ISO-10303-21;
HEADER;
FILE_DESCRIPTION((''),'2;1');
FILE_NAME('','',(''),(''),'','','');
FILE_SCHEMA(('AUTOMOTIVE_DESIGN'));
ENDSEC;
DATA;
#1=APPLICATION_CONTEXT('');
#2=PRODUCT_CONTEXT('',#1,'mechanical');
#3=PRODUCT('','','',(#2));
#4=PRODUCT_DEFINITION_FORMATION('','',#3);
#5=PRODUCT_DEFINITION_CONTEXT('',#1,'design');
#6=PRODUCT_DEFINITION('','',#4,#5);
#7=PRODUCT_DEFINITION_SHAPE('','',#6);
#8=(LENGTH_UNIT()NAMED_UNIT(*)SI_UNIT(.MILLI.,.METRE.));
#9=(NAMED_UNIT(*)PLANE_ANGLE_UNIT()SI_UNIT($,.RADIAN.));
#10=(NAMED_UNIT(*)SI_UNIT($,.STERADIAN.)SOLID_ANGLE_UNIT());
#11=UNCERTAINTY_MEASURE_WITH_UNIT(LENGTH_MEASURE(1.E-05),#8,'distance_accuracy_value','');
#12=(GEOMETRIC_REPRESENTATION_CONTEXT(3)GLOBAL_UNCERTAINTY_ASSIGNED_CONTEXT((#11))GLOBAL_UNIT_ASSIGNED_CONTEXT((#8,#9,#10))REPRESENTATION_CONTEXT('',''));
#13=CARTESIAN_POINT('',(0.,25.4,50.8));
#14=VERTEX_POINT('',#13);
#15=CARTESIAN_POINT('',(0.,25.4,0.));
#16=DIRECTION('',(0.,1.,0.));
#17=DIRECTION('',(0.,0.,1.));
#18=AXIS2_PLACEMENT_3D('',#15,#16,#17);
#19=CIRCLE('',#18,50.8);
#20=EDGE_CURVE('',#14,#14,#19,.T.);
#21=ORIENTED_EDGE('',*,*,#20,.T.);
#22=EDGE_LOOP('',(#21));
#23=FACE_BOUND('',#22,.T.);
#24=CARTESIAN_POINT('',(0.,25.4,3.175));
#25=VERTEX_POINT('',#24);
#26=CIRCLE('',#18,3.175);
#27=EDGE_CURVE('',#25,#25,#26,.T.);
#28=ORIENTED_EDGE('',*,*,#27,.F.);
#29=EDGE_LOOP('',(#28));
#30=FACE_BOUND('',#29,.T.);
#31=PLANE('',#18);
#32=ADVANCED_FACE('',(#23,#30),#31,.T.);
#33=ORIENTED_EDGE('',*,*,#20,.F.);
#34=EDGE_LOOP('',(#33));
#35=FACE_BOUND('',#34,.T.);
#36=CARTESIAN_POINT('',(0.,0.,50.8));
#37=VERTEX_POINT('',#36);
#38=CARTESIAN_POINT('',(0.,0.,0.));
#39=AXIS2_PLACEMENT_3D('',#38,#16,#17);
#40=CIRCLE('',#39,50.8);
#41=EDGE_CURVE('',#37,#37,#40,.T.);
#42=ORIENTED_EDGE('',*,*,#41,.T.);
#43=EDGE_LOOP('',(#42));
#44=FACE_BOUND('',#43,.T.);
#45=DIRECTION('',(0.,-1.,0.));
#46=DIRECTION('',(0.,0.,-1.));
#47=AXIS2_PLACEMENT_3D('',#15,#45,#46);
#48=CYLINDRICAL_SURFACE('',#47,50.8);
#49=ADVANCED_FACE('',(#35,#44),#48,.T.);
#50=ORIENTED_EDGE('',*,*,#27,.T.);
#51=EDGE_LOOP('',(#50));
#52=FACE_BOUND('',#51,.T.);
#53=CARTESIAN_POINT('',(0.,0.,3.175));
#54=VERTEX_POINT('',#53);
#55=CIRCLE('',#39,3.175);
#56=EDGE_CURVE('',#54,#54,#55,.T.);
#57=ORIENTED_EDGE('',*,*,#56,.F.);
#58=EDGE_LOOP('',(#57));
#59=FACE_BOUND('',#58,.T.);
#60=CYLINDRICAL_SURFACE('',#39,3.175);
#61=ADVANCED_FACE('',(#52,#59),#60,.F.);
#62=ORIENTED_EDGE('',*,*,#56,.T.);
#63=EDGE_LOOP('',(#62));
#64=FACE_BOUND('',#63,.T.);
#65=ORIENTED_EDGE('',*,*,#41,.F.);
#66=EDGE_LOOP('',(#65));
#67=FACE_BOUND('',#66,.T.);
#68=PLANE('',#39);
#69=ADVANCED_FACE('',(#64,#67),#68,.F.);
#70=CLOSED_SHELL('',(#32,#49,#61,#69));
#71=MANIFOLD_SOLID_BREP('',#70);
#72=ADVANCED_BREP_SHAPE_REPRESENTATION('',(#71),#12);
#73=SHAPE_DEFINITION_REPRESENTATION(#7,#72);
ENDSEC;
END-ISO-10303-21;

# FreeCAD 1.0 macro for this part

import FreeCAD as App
import Part
import Sketcher
Q = App.Units.Quantity

doc = App.newDocument("Part")
body = doc.addObject("PartDesign::Body", "Body")

# Sketch on XZ plane
sketch1 = body.newObject("Sketcher::SketchObject", "Sketch")
sketch1.AttachmentSupport = (doc.getObject("XZ_Plane"), [""])
sketch1.MapMode = "FlatFace"
sketch1.addGeometry(Part.Circle(App.Vector(0, 0, 0), App.Vector(0, 0, 1), 51), False)
sketch1.addConstraint([
    Sketcher.Constraint("Coincident", 0, 3, -1, 1),
    Sketcher.Constraint("Diameter", 0, Q("4 in")),
])
pad1 = body.newObject("PartDesign::Pad", "Pad")
pad1.Profile = sketch1
pad1.Length = Q("1 in")
pad1.Reversed = True

# Sketch on XZ plane
sketch2 = body.newObject("Sketcher::SketchObject", "Sketch001")
sketch2.AttachmentSupport = (doc.getObject("XZ_Plane"), [""])
sketch2.MapMode = "FlatFace"
sketch2.AttachmentOffset = App.Placement(App.Vector(0, 0, -1 * 25.4), App.Rotation())
sketch2.addGeometry(Part.Circle(App.Vector(0, 0, 0), App.Vector(0, 0, 1), 3.2), False)
sketch2.addConstraint([
    Sketcher.Constraint("Coincident", 0, 3, -1, 1),
    Sketcher.Constraint("Diameter", 0, Q("0.25 in")),
])
pocket1 = body.newObject("PartDesign::Pocket", "Pocket")
pocket1.Profile = sketch2
pocket1.Length = Q("1 in")
pocket1.Reversed = True

doc.recompute()
